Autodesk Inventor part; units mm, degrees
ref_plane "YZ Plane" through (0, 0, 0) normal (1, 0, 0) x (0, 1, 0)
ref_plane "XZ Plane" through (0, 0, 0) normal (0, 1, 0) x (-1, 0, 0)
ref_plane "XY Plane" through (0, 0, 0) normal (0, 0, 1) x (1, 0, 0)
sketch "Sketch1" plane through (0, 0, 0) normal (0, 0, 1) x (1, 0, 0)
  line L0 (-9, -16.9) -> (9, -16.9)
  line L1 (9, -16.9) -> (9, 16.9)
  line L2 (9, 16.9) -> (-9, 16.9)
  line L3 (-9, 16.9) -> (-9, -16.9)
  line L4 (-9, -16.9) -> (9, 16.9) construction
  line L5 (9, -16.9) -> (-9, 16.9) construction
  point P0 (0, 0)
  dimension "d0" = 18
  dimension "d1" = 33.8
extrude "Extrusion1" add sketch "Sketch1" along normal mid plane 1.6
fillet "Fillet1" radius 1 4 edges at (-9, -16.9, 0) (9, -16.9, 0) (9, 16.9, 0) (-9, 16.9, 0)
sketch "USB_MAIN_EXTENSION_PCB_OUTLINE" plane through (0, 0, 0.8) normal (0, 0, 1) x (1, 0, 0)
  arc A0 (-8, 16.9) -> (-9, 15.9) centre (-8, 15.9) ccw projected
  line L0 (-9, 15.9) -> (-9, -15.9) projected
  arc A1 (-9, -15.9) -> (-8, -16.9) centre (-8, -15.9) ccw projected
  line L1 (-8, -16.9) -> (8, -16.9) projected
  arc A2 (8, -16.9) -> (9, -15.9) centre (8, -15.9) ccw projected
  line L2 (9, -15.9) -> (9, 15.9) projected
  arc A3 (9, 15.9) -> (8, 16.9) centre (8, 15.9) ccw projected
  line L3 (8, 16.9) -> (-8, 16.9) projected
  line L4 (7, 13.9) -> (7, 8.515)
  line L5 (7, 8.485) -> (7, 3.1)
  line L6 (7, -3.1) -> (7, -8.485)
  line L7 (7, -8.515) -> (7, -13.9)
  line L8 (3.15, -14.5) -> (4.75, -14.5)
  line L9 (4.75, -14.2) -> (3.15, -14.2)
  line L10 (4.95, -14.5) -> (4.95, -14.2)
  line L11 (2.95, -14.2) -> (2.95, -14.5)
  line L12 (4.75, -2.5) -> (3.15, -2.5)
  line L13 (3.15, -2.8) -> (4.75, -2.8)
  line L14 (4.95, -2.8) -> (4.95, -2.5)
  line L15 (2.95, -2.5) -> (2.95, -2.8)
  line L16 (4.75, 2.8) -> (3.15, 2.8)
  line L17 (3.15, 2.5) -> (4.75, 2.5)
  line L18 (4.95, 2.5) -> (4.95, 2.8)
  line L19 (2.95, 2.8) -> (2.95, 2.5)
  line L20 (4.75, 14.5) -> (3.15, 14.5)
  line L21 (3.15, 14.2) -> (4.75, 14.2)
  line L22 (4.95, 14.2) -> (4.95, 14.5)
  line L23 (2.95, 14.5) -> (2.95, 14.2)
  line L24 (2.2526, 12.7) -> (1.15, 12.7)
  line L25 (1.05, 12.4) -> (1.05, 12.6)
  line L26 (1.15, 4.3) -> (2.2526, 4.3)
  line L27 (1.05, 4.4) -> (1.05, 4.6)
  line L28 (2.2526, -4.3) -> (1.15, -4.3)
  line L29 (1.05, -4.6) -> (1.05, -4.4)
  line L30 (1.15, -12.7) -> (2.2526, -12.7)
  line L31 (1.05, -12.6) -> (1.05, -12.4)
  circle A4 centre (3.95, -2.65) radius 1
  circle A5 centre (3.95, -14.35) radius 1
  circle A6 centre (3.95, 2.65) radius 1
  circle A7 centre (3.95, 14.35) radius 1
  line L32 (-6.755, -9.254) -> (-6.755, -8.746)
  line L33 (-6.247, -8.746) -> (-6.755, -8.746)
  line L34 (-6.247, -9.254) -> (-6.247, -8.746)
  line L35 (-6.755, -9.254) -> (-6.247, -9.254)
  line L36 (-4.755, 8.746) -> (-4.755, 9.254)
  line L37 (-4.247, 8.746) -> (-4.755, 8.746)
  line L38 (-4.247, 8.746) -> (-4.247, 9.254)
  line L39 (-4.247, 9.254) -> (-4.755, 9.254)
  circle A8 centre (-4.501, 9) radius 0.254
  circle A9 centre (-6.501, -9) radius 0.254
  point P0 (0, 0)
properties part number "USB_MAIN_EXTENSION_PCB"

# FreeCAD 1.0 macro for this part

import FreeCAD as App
import Part
import Sketcher


def edges_at(feature, points):
    """Names of the edges that pass closest to the given points."""
    edges = feature.Shape.Edges
    near = lambda p: min(range(len(edges)), key=lambda i: edges[i].distToShape(Part.Vertex(*p))[0])
    return sorted({f"Edge{near(p) + 1}" for p in points})


def add_polygon(sketch, points):
    """Adds a closed chain of lines whose ends are joined by coincident constraints."""
    first, n = sketch.GeometryCount, len(points)
    for a, b in zip(points, points[1:] + points[:1]):
        sketch.addGeometry(Part.LineSegment(App.Vector(*a, 0), App.Vector(*b, 0)), False)
    for i in range(n):
        sketch.addConstraint(Sketcher.Constraint("Coincident", first + i, 2, first + (i + 1) % n, 1))

doc = App.newDocument("Part")
body = doc.addObject("PartDesign::Body", "Body")

# Sketch on XY plane
sketch1 = doc.addObject("Sketcher::SketchObject", "Sketch")
body.addObject(sketch1)
sketch1.AttachmentSupport = (doc.XY_Plane, [""])
sketch1.MapMode = "FlatFace"
add_polygon(sketch1, [(-9, 17), (-9, -17), (9, -17), (9, 17)])  # lines 0-3
sketch1.addConstraint([
    Sketcher.Constraint("Vertical", 0),
    Sketcher.Constraint("Horizontal", 1),
    Sketcher.Constraint("Vertical", 2),
    Sketcher.Constraint("Horizontal", 3),
    Sketcher.Constraint("Symmetric", 0, 2, 2, 2, -1, 1),
    Sketcher.Constraint("DistanceX", 1, 1, 1, 2, 18.0),
    Sketcher.Constraint("DistanceY", 0, 2, 0, 1, 33.8),
])
pad1 = doc.addObject("PartDesign::Pad", "Pad")
body.addObject(pad1)
pad1.Profile = sketch1
pad1.Length = 1.6
pad1.Midplane = True
doc.recompute()

fillet = doc.addObject("PartDesign::Fillet", "Fillet")
body.addObject(fillet)
fillet.Base = (pad1, edges_at(pad1, [
    (-9, -16.9, 0),
    (9, -16.9, 0),
    (9, 16.9, 0),
    (-9, 16.9, 0),
]))
fillet.Radius = 1

doc.recompute()
